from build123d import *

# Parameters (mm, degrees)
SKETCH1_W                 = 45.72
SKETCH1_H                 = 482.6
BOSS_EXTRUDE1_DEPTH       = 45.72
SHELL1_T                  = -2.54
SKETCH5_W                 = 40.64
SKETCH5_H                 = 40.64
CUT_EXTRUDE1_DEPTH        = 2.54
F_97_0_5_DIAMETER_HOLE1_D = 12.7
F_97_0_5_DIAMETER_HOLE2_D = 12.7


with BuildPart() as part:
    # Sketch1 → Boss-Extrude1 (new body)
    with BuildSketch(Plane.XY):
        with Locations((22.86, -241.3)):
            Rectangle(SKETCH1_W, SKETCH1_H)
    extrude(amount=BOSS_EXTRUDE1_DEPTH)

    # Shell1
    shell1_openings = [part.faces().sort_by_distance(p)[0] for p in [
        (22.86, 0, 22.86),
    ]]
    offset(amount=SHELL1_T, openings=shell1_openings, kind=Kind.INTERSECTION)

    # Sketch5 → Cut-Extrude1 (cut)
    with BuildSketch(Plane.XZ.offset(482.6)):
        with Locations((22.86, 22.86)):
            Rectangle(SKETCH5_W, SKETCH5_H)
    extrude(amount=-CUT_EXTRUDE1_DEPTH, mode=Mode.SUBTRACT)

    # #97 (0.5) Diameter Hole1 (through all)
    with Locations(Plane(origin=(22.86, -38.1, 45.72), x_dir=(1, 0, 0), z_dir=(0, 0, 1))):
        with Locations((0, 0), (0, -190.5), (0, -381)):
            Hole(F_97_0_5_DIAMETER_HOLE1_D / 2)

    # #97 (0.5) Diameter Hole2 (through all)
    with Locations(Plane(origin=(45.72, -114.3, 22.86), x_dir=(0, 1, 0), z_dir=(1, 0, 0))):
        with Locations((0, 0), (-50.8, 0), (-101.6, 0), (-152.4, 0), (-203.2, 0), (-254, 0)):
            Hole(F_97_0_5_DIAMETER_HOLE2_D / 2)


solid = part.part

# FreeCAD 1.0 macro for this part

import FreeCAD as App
import Part
import Sketcher
from FreeCAD import Vector
Q = App.Units.Quantity


def faces_at(feature, points):
    """Names of the faces that lie closest to the given points."""
    faces = feature.Shape.Faces
    near = lambda p: min(range(len(faces)), key=lambda i: faces[i].distToShape(Part.Vertex(*p))[0])
    return sorted({f"Face{near(p) + 1}" for p in points})


def add_polygon(sketch, points):
    """Adds a closed chain of lines whose ends are joined by coincident constraints."""
    first, n = sketch.GeometryCount, len(points)
    for a, b in zip(points, points[1:] + points[:1]):
        sketch.addGeometry(Part.LineSegment(App.Vector(*a, 0), App.Vector(*b, 0)), False)
    for i in range(n):
        sketch.addConstraint(Sketcher.Constraint("Coincident", first + i, 2, first + (i + 1) % n, 1))

doc = App.newDocument("Part")
body = doc.addObject("PartDesign::Body", "Body")

sketch1 = doc.addObject("Sketcher::SketchObject", "Sketch")
body.addObject(sketch1)
sketch1.AttachmentSupport = (doc.XY_Plane, [""])
sketch1.MapMode = "FlatFace"
add_polygon(sketch1, [(0, 0), (0, -483), (46, -483), (46, 0)])
sketch1.addConstraint([
    Sketcher.Constraint("Vertical", 0),
    Sketcher.Constraint("Horizontal", 1),
    Sketcher.Constraint("Vertical", 2),
    Sketcher.Constraint("Horizontal", 3),
    Sketcher.Constraint("Coincident", 3, 2, -1, 1),
    Sketcher.Constraint("DistanceY", 0, 2, 0, 1, Q("19 in")),
    Sketcher.Constraint("DistanceX", 1, 1, 1, 2, Q("1.8 in")),
])
pad1 = doc.addObject("PartDesign::Pad", "Pad")
body.addObject(pad1)
pad1.Profile = sketch1
pad1.Length = Q("1.8 in")
doc.recompute()

thickness = doc.addObject("PartDesign::Thickness", "Thickness")
body.addObject(thickness)
thickness.Base = (pad1, faces_at(pad1, [(22.86, 0, 22.86)]))
thickness.Value = Q("0.1 in")
thickness.Reversed = True
thickness.Join = "Intersection"

sketch2 = doc.addObject("Sketcher::SketchObject", "Sketch001")
body.addObject(sketch2)
sketch2.AttachmentSupport = (doc.XZ_Plane, [""])
sketch2.MapMode = "FlatFace"
sketch2.AttachmentOffset = App.Placement(Vector(0, 0, 19 * 25.4), App.Rotation())
add_polygon(sketch2, [(3, 43), (3, 3), (43, 3), (43, 43)])
sketch2.addConstraint([
    Sketcher.Constraint("Vertical", 0),
    Sketcher.Constraint("Horizontal", 1),
    Sketcher.Constraint("Vertical", 2),
    Sketcher.Constraint("Horizontal", 3),
    Sketcher.Constraint("Equal", 3, 0),
    Sketcher.Constraint("DistanceX", 1, 1, 1, 2, Q("1.6 in")),
    Sketcher.Constraint("DistanceX", -1, 1, 0, 2, Q("0.1 in")),
    Sketcher.Constraint("DistanceY", -1, 1, 0, 2, Q("0.1 in")),
])
pocket1 = doc.addObject("PartDesign::Pocket", "Pocket")
body.addObject(pocket1)
pocket1.Profile = sketch2
pocket1.Length = Q("0.1 in")

sketch3 = doc.addObject("Sketcher::SketchObject", "Sketch002")
body.addObject(sketch3)
sketch3.AttachmentSupport = (doc.XY_Plane, [""])
sketch3.MapMode = "FlatFace"
sketch3.AttachmentOffset = App.Placement(Vector(0, 0, 1.8 * 25.4), App.Rotation())
sketch3.addGeometry([
    Part.Circle(Vector(23, -38, 0), Vector(0, 0, 1), 6),
    Part.Circle(Vector(23, -229, 0), Vector(0, 0, 1), 6),
    Part.Circle(Vector(23, -419, 0), Vector(0, 0, 1), 6),
], False)
sketch3.addConstraint([
    Sketcher.Constraint("Equal", 0, 1),
    Sketcher.Constraint("Equal", 1, 2),
    Sketcher.Constraint("Vertical", 0, 3, 1, 3),
    Sketcher.Constraint("Vertical", 1, 3, 2, 3),
    Sketcher.Constraint("Diameter", 0, Q("0.5 in")),
    Sketcher.Constraint("DistanceY", 1, 3, -1, 1, Q("9 in")),
    Sketcher.Constraint("DistanceY", 2, 3, 0, 3, Q("15 in")),
    Sketcher.Constraint("DistanceX", -1, 1, 0, 3, Q("0.9 in")),
    Sketcher.Constraint("DistanceY", 0, 3, -1, 1, Q("1.5 in")),
])
doc.recompute()
hole = doc.addObject("PartDesign::Hole", "Hole")
body.addObject(hole)
hole.Profile = sketch3
hole.ThreadType = "None"
hole.Diameter = Q("0.5 in")
hole.DepthType = "ThroughAll"

sketch4 = doc.addObject("Sketcher::SketchObject", "Sketch003")
body.addObject(sketch4)
sketch4.AttachmentSupport = (doc.YZ_Plane, [""])
sketch4.MapMode = "FlatFace"
sketch4.AttachmentOffset = App.Placement(Vector(0, 0, 1.8 * 25.4), App.Rotation())
sketch4.addGeometry([
    Part.Circle(Vector(-114, 23, 0), Vector(0, 0, 1), 6),
    Part.Circle(Vector(-165, 23, 0), Vector(0, 0, 1), 6),
    Part.Circle(Vector(-216, 23, 0), Vector(0, 0, 1), 6),
    Part.Circle(Vector(-267, 23, 0), Vector(0, 0, 1), 6),
    Part.Circle(Vector(-318, 23, 0), Vector(0, 0, 1), 6),
    Part.Circle(Vector(-368, 23, 0), Vector(0, 0, 1), 6),
], False)
sketch4.addConstraint([
    Sketcher.Constraint("Equal", 0, 1),
    Sketcher.Constraint("Equal", 1, 2),
    Sketcher.Constraint("Equal", 2, 3),
    Sketcher.Constraint("Equal", 3, 4),
    Sketcher.Constraint("Equal", 4, 5),
    Sketcher.Constraint("Horizontal", 0, 3, 1, 3),
    Sketcher.Constraint("Horizontal", 1, 3, 2, 3),
    Sketcher.Constraint("Horizontal", 2, 3, 3, 3),
    Sketcher.Constraint("Horizontal", 3, 3, 4, 3),
    Sketcher.Constraint("Horizontal", 4, 3, 5, 3),
    Sketcher.Constraint("Diameter", 0, Q("0.5 in")),
    Sketcher.Constraint("DistanceX", 1, 3, 0, 3, Q("2 in")),
    Sketcher.Constraint("DistanceX", 2, 3, 1, 3, Q("2 in")),
    Sketcher.Constraint("DistanceX", 3, 3, 2, 3, Q("2 in")),
    Sketcher.Constraint("DistanceX", 4, 3, 3, 3, Q("2 in")),
    Sketcher.Constraint("DistanceX", 5, 3, 4, 3, Q("2 in")),
    Sketcher.Constraint("DistanceX", 0, 3, -1, 1, Q("4.5 in")),
    Sketcher.Constraint("DistanceY", -1, 1, 0, 3, Q("0.9 in")),
])
doc.recompute()
hole2 = doc.addObject("PartDesign::Hole", "Hole001")
body.addObject(hole2)
hole2.Profile = sketch4
hole2.ThreadType = "None"
hole2.Diameter = Q("0.5 in")
hole2.DepthType = "ThroughAll"

doc.recompute()
